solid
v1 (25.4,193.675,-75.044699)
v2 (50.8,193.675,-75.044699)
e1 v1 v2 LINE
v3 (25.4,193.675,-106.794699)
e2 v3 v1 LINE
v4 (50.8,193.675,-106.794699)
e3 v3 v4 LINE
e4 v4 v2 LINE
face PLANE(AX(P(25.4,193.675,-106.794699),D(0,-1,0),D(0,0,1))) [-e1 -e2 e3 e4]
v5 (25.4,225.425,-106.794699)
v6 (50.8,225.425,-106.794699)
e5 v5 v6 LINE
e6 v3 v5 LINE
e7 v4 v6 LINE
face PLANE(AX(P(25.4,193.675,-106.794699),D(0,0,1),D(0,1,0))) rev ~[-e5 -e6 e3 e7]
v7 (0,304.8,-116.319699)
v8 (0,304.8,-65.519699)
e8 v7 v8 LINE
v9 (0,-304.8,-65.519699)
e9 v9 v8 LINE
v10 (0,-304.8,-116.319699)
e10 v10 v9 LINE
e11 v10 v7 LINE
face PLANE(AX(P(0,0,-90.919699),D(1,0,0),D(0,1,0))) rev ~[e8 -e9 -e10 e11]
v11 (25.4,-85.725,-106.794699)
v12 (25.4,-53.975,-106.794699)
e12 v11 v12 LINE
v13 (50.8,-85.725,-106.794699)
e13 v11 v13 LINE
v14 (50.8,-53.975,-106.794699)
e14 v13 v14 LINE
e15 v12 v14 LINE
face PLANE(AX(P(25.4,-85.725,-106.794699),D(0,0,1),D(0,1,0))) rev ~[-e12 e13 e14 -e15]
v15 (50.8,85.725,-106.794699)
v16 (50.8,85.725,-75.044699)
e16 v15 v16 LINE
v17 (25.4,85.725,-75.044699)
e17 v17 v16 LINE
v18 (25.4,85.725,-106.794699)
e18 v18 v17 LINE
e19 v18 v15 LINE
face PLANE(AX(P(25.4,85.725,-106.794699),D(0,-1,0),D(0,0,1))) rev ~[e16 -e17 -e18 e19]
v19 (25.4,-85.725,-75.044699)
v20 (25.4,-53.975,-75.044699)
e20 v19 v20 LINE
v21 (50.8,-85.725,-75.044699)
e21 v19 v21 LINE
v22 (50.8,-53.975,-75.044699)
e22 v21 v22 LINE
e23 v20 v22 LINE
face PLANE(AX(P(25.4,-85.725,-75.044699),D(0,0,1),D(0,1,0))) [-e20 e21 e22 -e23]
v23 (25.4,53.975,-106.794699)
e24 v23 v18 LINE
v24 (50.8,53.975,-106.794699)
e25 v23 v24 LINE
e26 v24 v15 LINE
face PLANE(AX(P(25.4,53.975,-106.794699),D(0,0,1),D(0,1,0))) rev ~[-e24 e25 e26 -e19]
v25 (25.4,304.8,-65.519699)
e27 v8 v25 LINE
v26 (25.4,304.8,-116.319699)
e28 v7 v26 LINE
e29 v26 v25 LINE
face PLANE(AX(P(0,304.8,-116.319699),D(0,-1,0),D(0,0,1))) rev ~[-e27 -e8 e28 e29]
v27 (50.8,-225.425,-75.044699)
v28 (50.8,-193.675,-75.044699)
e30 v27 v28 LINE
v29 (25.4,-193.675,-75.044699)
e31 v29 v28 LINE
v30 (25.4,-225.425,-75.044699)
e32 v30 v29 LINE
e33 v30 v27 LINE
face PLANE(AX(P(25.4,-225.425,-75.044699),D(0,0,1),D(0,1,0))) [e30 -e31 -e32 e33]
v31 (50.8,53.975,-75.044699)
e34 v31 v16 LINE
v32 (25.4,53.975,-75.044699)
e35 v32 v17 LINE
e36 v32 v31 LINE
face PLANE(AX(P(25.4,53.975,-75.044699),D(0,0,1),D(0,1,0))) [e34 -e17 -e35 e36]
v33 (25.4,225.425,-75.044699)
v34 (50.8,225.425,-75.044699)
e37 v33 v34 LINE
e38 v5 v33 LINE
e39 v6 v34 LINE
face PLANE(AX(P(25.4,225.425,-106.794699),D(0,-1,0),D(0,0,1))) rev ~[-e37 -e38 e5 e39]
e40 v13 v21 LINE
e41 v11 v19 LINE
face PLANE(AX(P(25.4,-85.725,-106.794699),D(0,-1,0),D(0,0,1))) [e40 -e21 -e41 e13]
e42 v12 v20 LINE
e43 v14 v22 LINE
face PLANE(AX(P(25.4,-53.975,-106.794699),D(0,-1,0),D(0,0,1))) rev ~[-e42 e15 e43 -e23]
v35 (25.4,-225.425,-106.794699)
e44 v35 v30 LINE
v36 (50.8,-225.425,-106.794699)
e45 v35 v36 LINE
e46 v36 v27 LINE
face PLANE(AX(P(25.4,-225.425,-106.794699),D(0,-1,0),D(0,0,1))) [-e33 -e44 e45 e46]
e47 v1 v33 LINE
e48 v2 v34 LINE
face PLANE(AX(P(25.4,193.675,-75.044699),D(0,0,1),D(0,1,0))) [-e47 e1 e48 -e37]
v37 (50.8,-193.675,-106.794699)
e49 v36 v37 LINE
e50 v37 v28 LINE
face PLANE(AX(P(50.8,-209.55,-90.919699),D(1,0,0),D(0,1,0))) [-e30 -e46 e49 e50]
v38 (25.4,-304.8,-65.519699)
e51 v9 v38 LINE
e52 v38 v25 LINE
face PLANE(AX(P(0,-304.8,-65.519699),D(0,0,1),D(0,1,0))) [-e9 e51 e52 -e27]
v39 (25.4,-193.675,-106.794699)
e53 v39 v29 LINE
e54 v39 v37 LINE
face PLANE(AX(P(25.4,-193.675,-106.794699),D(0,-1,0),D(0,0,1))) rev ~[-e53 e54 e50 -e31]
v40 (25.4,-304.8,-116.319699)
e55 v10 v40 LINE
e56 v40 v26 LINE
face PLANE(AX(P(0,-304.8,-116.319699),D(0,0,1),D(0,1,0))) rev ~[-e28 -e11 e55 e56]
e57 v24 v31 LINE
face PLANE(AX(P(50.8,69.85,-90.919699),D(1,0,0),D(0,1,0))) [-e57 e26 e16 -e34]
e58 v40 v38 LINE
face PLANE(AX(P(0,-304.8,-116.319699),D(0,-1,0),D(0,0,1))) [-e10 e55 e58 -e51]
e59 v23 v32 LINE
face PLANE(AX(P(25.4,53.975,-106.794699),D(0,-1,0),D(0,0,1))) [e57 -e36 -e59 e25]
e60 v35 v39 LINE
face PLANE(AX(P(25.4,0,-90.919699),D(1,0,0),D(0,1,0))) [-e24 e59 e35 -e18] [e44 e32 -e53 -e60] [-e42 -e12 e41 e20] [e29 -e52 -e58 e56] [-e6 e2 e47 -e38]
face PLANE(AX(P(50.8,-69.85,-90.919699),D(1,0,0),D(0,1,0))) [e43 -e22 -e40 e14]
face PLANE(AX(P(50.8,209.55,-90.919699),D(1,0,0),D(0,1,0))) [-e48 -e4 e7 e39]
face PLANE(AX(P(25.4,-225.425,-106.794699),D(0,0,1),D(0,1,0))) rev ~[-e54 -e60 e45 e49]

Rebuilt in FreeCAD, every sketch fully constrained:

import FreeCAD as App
import Part
import Sketcher

V = App.Vector
Q = App.Units.Quantity


def add_polygon(sketch, points):
    """Adds a closed chain of lines whose ends are joined by coincident constraints."""
    first, n = sketch.GeometryCount, len(points)
    for a, b in zip(points, points[1:] + points[:1]):
        sketch.addGeometry(Part.LineSegment(App.Vector(*a, 0), App.Vector(*b, 0)), False)
    for i in range(n):
        sketch.addConstraint(Sketcher.Constraint("Coincident", first + i, 2, first + (i + 1) % n, 1))

doc = App.newDocument("Part")
body = doc.addObject("PartDesign::Body", "Body")

# Sketch on YZ plane
sketch1 = body.newObject("Sketcher::SketchObject", "Sketch")
sketch1.AttachmentSupport = (doc.getObject("YZ_Plane"), [""])
sketch1.MapMode = "FlatFace"
add_polygon(sketch1, [(-304.8, -65.519699), (-304.8, -116.319699), (304.8, -116.319699), (304.8, -65.519699)])  # lines 0-3
sketch1.addConstraint([
    Sketcher.Constraint("Vertical", 0),
    Sketcher.Constraint("Horizontal", 1),
    Sketcher.Constraint("Vertical", 2),
    Sketcher.Constraint("Horizontal", 3),
    Sketcher.Constraint("DistanceX", 1, 1, 1, 2, Q("24 in")),
    Sketcher.Constraint("DistanceY", 0, 2, 0, 1, Q("2 in")),
    Sketcher.Constraint("DistanceX", 0, 2, -1, 1, Q("12 in")),
    Sketcher.Constraint("DistanceY", 0, 2, -1, 1, Q("116.319699 mm")),
])
pad1 = body.newObject("PartDesign::Pad", "Pad")
pad1.Profile = sketch1
pad1.Length = Q("1 in")

# Sketch on YZ plane
sketch2 = body.newObject("Sketcher::SketchObject", "Sketch001")
sketch2.AttachmentSupport = (doc.getObject("YZ_Plane"), [""])
sketch2.MapMode = "FlatFace"
sketch2.AttachmentOffset = App.Placement(V(0, 0, 1 * 25.4), App.Rotation())
add_polygon(sketch2, [(-225.425, -75.044699), (-225.425, -106.794699), (-193.675, -106.794699), (-193.675, -75.044699)])  # lines 0-3
add_polygon(sketch2, [(-85.725, -75.044699), (-85.725, -106.794699), (-53.975, -106.794699), (-53.975, -75.044699)])  # lines 4-7
add_polygon(sketch2, [(53.975, -75.044699), (53.975, -106.794699), (85.725, -106.794699), (85.725, -75.044699)])  # lines 8-11
add_polygon(sketch2, [(193.675, -75.044699), (193.675, -106.794699), (225.425, -106.794699), (225.425, -75.044699)])  # lines 12-15
sketch2.addConstraint([
    Sketcher.Constraint("Vertical", 0),
    Sketcher.Constraint("Horizontal", 1),
    Sketcher.Constraint("Vertical", 2),
    Sketcher.Constraint("Horizontal", 3),
    Sketcher.Constraint("Vertical", 4),
    Sketcher.Constraint("Horizontal", 5),
    Sketcher.Constraint("Vertical", 6),
    Sketcher.Constraint("Horizontal", 7),
    Sketcher.Constraint("Vertical", 8),
    Sketcher.Constraint("Horizontal", 9),
    Sketcher.Constraint("Vertical", 10),
    Sketcher.Constraint("Horizontal", 11),
    Sketcher.Constraint("Vertical", 12),
    Sketcher.Constraint("Horizontal", 13),
    Sketcher.Constraint("Vertical", 14),
    Sketcher.Constraint("Horizontal", 15),
    Sketcher.Constraint("Symmetric", 5, 2, 8, 2, -2),
    Sketcher.Constraint("Symmetric", 7, 2, 10, 2, -2),
    Sketcher.Constraint("Symmetric", 1, 2, 12, 2, -2),
    Sketcher.Constraint("Symmetric", 3, 2, 14, 2, -2),
    Sketcher.Constraint("Horizontal", 1, 2, 4, 2),
    Sketcher.Constraint("Horizontal", 3, 2, 6, 2),
    Sketcher.Constraint("Equal", 3, 5),
    Sketcher.Constraint("Equal", 15, 0),
    Sketcher.Constraint("DistanceX", 1, 1, 1, 2, Q("1.25 in")),
    Sketcher.Constraint("DistanceX", 0, 2, 4, 2, Q("5.5 in")),
    Sketcher.Constraint("DistanceX", 4, 2, 8, 2, Q("5.5 in")),
    Sketcher.Constraint("DistanceY", 0, 2, -1, 1, Q("106.794699 mm")),
])
pad2 = body.newObject("PartDesign::Pad", "Pad001")
pad2.Profile = sketch2
pad2.Length = Q("1 in")

doc.recompute()
